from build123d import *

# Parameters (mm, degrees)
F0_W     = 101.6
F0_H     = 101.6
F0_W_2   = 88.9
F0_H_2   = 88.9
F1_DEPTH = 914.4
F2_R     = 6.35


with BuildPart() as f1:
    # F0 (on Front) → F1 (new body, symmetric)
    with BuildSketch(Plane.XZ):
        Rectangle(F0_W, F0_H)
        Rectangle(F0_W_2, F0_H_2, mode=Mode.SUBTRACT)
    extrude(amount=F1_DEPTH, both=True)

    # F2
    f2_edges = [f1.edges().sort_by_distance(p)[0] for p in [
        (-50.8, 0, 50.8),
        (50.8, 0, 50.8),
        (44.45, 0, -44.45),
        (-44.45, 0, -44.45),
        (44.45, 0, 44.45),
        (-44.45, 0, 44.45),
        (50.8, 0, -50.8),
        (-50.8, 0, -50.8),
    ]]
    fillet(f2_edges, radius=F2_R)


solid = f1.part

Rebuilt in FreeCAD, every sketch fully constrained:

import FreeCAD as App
import Part
import Sketcher

V = App.Vector
Q = App.Units.Quantity


def edges_at(feature, points):
    """Names of the edges that pass closest to the given points."""
    edges = feature.Shape.Edges
    near = lambda p: min(range(len(edges)), key=lambda i: edges[i].distToShape(Part.Vertex(*p))[0])
    return sorted({f"Edge{near(p) + 1}" for p in points})

doc = App.newDocument("Part")
body = doc.addObject("PartDesign::Body", "Body")

sketch1 = body.newObject("Sketcher::SketchObject", "Sketch")
sketch1.AttachmentSupport = (doc.getObject("XZ_Plane"), [""])
sketch1.MapMode = "FlatFace"
sketch1.addGeometry([
    Part.LineSegment(V(-50.8, 50.8, 0), V(-50.8, -50.8, 0)),
    Part.LineSegment(V(-50.8, -50.8, 0), V(50.8, -50.8, 0)),
    Part.LineSegment(V(50.8, -50.8, 0), V(50.8, 50.8, 0)),
    Part.LineSegment(V(50.8, 50.8, 0), V(-50.8, 50.8, 0)),
    Part.LineSegment(V(44.45, -44.45, 0), V(-44.45, -44.45, 0)),
    Part.LineSegment(V(-44.45, -44.45, 0), V(-44.45, 44.45, 0)),
    Part.LineSegment(V(-44.45, 44.45, 0), V(44.45, 44.45, 0)),
    Part.LineSegment(V(44.45, 44.45, 0), V(44.45, -44.45, 0)),
], False)
sketch1.addConstraint([
    Sketcher.Constraint("Coincident", 0, 2, 1, 1),
    Sketcher.Constraint("Coincident", 1, 2, 2, 1),
    Sketcher.Constraint("Coincident", 2, 2, 3, 1),
    Sketcher.Constraint("Coincident", 3, 2, 0, 1),
    Sketcher.Constraint("Coincident", 4, 2, 5, 1),
    Sketcher.Constraint("Coincident", 5, 2, 6, 1),
    Sketcher.Constraint("Coincident", 6, 2, 7, 1),
    Sketcher.Constraint("Coincident", 7, 2, 4, 1),
    Sketcher.Constraint("Vertical", 0),
    Sketcher.Constraint("Horizontal", 1),
    Sketcher.Constraint("Vertical", 2),
    Sketcher.Constraint("Horizontal", 3),
    Sketcher.Constraint("Horizontal", 4),
    Sketcher.Constraint("Vertical", 5),
    Sketcher.Constraint("Horizontal", 6),
    Sketcher.Constraint("Vertical", 7),
    Sketcher.Constraint("Symmetric", 0, 2, 2, 2, -1, 1),
    Sketcher.Constraint("Symmetric", 4, 2, 6, 2, -1, 1),
    Sketcher.Constraint("Equal", 3, 0),
    Sketcher.Constraint("Equal", 6, 5),
    Sketcher.Constraint("DistanceX", 1, 1, 1, 2, Q("4 in")),
    Sketcher.Constraint("DistanceX", 4, 2, 4, 1, Q("3.5 in")),
])
pad1 = body.newObject("PartDesign::Pad", "Pad")
pad1.Profile = sketch1
pad1.Length = Q("72 in")
pad1.Midplane = True
doc.recompute()

fillet = body.newObject("PartDesign::Fillet", "Fillet")
fillet.Base = (pad1, edges_at(pad1, [
    (-50.8, 0, 50.8),
    (50.8, 0, 50.8),
    (44.45, 0, -44.45),
    (-44.45, 0, -44.45),
    (44.45, 0, 44.45),
    (-44.45, 0, 44.45),
    (50.8, 0, -50.8),
    (-50.8, 0, -50.8),
]))
fillet.Radius = Q("0.25 in")

doc.recompute()
